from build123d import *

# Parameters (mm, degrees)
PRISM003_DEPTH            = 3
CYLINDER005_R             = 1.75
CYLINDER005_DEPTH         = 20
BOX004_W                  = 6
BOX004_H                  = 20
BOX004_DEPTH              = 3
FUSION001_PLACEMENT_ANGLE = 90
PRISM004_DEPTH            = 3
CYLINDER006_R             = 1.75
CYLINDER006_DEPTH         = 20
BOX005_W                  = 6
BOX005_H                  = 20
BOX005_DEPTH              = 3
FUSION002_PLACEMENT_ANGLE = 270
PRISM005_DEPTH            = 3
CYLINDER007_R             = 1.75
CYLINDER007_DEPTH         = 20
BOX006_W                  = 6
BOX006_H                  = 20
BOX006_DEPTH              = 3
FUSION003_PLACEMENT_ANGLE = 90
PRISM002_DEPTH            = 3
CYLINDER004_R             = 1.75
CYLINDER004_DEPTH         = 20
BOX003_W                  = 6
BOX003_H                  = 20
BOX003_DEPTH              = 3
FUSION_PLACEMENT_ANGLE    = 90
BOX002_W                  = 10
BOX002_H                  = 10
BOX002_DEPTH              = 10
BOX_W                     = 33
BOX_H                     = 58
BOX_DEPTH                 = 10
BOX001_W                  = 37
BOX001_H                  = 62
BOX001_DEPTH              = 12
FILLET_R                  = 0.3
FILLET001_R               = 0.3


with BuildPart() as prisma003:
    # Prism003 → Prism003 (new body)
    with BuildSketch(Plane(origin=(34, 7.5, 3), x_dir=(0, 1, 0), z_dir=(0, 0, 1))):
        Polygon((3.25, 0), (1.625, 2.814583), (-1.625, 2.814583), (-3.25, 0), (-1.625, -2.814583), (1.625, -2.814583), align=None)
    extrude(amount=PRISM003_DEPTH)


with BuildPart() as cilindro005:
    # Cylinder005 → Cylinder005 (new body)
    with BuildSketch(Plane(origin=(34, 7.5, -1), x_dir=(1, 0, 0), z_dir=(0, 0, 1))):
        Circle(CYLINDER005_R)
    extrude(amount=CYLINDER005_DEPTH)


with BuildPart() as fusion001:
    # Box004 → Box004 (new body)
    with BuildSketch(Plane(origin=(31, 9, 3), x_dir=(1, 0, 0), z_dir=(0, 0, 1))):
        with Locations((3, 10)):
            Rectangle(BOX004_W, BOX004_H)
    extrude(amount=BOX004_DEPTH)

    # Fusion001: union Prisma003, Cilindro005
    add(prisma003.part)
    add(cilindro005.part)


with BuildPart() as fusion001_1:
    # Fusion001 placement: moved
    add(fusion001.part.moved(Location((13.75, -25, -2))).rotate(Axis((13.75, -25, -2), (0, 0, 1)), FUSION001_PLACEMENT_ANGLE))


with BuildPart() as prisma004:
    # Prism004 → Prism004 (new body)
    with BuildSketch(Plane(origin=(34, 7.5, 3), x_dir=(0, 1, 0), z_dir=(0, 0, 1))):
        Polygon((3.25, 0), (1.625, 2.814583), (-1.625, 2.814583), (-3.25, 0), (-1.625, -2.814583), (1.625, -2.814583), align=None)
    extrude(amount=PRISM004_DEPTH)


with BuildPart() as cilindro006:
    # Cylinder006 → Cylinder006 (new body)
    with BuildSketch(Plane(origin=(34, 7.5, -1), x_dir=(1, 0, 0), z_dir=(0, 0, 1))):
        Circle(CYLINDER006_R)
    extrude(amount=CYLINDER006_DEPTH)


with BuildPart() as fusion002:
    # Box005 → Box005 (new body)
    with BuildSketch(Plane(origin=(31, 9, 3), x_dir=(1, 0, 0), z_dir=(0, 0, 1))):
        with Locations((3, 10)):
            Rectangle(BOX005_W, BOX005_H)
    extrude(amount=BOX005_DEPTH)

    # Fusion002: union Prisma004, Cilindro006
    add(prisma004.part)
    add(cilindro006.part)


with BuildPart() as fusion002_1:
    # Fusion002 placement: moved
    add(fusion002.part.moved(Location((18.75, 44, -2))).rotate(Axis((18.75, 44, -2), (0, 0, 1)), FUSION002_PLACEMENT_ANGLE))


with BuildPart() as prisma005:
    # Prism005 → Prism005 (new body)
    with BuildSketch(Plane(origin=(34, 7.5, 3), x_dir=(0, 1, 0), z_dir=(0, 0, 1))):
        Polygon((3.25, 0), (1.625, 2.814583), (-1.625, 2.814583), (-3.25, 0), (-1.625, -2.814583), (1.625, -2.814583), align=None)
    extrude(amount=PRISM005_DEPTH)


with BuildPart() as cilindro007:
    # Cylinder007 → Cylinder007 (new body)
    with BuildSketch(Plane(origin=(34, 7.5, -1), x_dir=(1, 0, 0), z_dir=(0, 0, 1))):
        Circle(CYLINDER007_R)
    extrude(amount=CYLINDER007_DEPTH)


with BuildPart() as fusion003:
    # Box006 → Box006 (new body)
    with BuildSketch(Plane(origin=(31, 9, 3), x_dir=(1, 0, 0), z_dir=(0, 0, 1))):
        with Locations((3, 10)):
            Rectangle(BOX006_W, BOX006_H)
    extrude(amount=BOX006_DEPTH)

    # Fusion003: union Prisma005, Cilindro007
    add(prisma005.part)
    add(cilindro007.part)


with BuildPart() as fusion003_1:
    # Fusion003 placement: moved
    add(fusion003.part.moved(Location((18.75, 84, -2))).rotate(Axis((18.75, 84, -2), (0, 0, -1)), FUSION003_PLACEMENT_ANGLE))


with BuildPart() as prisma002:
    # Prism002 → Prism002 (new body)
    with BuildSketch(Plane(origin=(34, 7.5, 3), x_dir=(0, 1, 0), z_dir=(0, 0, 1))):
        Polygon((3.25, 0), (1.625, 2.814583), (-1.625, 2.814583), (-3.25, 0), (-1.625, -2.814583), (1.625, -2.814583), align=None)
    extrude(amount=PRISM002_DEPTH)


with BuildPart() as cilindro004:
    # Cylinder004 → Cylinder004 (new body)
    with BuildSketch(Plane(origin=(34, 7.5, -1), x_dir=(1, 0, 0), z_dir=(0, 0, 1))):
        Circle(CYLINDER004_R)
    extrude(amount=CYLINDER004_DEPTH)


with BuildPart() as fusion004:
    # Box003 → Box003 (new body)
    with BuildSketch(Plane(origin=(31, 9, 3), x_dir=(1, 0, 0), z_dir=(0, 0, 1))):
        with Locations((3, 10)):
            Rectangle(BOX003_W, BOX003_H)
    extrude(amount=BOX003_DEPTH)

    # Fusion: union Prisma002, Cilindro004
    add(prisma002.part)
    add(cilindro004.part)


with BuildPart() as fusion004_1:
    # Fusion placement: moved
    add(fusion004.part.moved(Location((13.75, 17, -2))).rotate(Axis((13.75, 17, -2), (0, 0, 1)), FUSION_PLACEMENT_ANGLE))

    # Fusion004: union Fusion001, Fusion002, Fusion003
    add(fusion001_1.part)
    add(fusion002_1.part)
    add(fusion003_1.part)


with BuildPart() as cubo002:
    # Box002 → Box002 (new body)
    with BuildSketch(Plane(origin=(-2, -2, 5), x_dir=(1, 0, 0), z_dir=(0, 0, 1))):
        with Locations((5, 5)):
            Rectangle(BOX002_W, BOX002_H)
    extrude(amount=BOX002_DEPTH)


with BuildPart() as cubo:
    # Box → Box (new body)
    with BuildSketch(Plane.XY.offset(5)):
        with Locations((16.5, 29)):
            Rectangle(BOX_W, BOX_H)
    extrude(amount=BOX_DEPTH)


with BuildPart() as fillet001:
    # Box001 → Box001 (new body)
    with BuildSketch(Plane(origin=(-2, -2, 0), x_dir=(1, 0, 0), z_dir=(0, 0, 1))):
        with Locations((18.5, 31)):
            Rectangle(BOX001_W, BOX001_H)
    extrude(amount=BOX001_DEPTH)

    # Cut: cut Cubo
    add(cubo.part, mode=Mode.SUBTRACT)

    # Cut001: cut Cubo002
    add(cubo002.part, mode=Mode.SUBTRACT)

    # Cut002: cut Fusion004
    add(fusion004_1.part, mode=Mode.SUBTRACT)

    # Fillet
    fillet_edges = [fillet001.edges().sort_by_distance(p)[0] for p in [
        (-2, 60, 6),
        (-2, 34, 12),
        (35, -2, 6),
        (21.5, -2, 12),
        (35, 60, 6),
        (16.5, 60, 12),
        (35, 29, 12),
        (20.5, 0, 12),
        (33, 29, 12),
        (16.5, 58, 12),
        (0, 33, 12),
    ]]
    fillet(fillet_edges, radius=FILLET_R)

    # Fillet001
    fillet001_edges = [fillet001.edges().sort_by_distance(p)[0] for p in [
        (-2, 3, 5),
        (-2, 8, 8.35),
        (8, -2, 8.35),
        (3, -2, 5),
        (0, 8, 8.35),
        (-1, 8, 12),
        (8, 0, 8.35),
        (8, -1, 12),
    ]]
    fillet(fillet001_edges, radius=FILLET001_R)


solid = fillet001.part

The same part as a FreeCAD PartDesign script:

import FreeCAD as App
import Part
import Sketcher
from FreeCAD import Vector
Q = App.Units.Quantity


def edges_at(feature, points):
    """Names of the edges that pass closest to the given points."""
    edges = feature.Shape.Edges
    near = lambda p: min(range(len(edges)), key=lambda i: edges[i].distToShape(Part.Vertex(*p))[0])
    return sorted({f"Edge{near(p) + 1}" for p in points})


def add_polygon(sketch, points):
    """Adds a closed chain of lines whose ends are joined by coincident constraints."""
    first, n = sketch.GeometryCount, len(points)
    for a, b in zip(points, points[1:] + points[:1]):
        sketch.addGeometry(Part.LineSegment(App.Vector(*a, 0), App.Vector(*b, 0)), False)
    for i in range(n):
        sketch.addConstraint(Sketcher.Constraint("Coincident", first + i, 2, first + (i + 1) % n, 1))

doc = App.newDocument("Part")
body = doc.addObject("PartDesign::Body", "Body")

# Sketch on XY plane
sketch1 = body.newObject("Sketcher::SketchObject", "Sketch")
sketch1.AttachmentSupport = (doc.getObject("XY_Plane"), [""])
sketch1.MapMode = "FlatFace"
sketch1.AttachmentOffset = App.Placement(Vector(0, 0, 3), App.Rotation())
add_polygon(sketch1, [(34, 10.8), (31.2, 9.1), (31.2, 5.9), (34, 4.2), (36.8, 5.9), (36.8, 9.1)])  # lines 0-5
sketch1.addConstraint(Sketcher.Constraint("Vertical", 1))
sketch1.addConstraint(Sketcher.Constraint("Vertical", 4))
sketch1.addConstraint(Sketcher.Constraint("Parallel", 0, 3))
sketch1.addConstraint(Sketcher.Constraint("Parallel", 2, 5))
sketch1.addConstraint(Sketcher.Constraint("Horizontal", 1, 2, 3, 2))
sketch1.addConstraint(Sketcher.Constraint("Horizontal", 0, 2, 4, 2))
sketch1.addConstraint(Sketcher.Constraint("Vertical", 2, 2, 5, 2))
sketch1.addConstraint(Sketcher.Constraint("Angle", 0, Q("-150.000004 deg")))
sketch1.addConstraint(Sketcher.Constraint("DistanceX", -1, 1, 2, 2, 34.0))
sketch1.addConstraint(Sketcher.Constraint("DistanceY", 1, 2, 1, 1, 3.25))
sketch1.addConstraint(Sketcher.Constraint("DistanceY", 2, 2, 5, 2, 6.5))
sketch1.addConstraint(Sketcher.Constraint("DistanceY", -1, 1, 2, 2, 4.25))
pad1 = body.newObject("PartDesign::Pad", "Pad")
pad1.Profile = sketch1
pad1.Length = 3
body2 = doc.addObject("PartDesign::Body", "Body001")

# Sketch on XY plane
sketch2 = body2.newObject("Sketcher::SketchObject", "Sketch001")
sketch2.AttachmentSupport = (doc.getObject("XY_Plane001"), [""])
sketch2.MapMode = "FlatFace"
sketch2.AttachmentOffset = App.Placement(Vector(0, 0, -1), App.Rotation())
sketch2.addGeometry(Part.Circle(Vector(34, 7.5, 0), Vector(0, 0, 1), 1.8), False)
sketch2.addConstraint(Sketcher.Constraint("Diameter", 0, 3.5))
sketch2.addConstraint(Sketcher.Constraint("DistanceX", -1, 1, 0, 3, 34.0))
sketch2.addConstraint(Sketcher.Constraint("DistanceY", -1, 1, 0, 3, 7.5))
pad2 = body2.newObject("PartDesign::Pad", "Pad001")
pad2.Profile = sketch2
pad2.Length = 20
body3 = doc.addObject("PartDesign::Body", "Body002")

# Sketch on XY plane
sketch3 = body3.newObject("Sketcher::SketchObject", "Sketch002")
sketch3.AttachmentSupport = (doc.getObject("XY_Plane002"), [""])
sketch3.MapMode = "FlatFace"
sketch3.AttachmentOffset = App.Placement(Vector(0, 0, 3), App.Rotation())
add_polygon(sketch3, [(31, 29), (31, 9), (37, 9), (37, 29)])  # lines 0-3
sketch3.addConstraint(Sketcher.Constraint("Vertical", 0))
sketch3.addConstraint(Sketcher.Constraint("Horizontal", 1))
sketch3.addConstraint(Sketcher.Constraint("Vertical", 2))
sketch3.addConstraint(Sketcher.Constraint("Horizontal", 3))
sketch3.addConstraint(Sketcher.Constraint("DistanceX", 1, 1, 1, 2, 6.0))
sketch3.addConstraint(Sketcher.Constraint("DistanceY", 0, 2, 0, 1, 20.0))
sketch3.addConstraint(Sketcher.Constraint("DistanceX", -1, 1, 0, 2, 31.0))
sketch3.addConstraint(Sketcher.Constraint("DistanceY", -1, 1, 0, 2, 9.0))
pad3 = body3.newObject("PartDesign::Pad", "Pad002")
pad3.Profile = sketch3
pad3.Length = 3
doc.recompute()

boolean = body3.newObject("PartDesign::Boolean", "Boolean")
boolean.Type = "Fuse"
boolean.addObjects([body])
doc.recompute()

boolean2 = body3.newObject("PartDesign::Boolean", "Boolean001")
boolean2.Type = "Fuse"
boolean2.addObjects([body2])
body4 = doc.addObject("PartDesign::Body", "Body003")
doc.recompute()

body3.Placement = App.Placement(Vector(13.75, -25, -2), App.Rotation(Vector(0, 0, 1), 90))
boolean3 = body4.newObject("PartDesign::Boolean", "Boolean002")
boolean3.Type = "Fuse"
boolean3.addObjects([body3])
body5 = doc.addObject("PartDesign::Body", "Body004")

# Sketch on XY plane
sketch4 = body5.newObject("Sketcher::SketchObject", "Sketch003")
sketch4.AttachmentSupport = (doc.getObject("XY_Plane004"), [""])
sketch4.MapMode = "FlatFace"
sketch4.AttachmentOffset = App.Placement(Vector(0, 0, 3), App.Rotation())
add_polygon(sketch4, [(34, 10.8), (31.2, 9.1), (31.2, 5.9), (34, 4.2), (36.8, 5.9), (36.8, 9.1)])  # lines 0-5
sketch4.addConstraint(Sketcher.Constraint("Vertical", 1))
sketch4.addConstraint(Sketcher.Constraint("Vertical", 4))
sketch4.addConstraint(Sketcher.Constraint("Parallel", 0, 3))
sketch4.addConstraint(Sketcher.Constraint("Parallel", 2, 5))
sketch4.addConstraint(Sketcher.Constraint("Horizontal", 1, 2, 3, 2))
sketch4.addConstraint(Sketcher.Constraint("Horizontal", 0, 2, 4, 2))
sketch4.addConstraint(Sketcher.Constraint("Vertical", 2, 2, 5, 2))
sketch4.addConstraint(Sketcher.Constraint("Angle", 0, Q("-150.000004 deg")))
sketch4.addConstraint(Sketcher.Constraint("DistanceX", -1, 1, 2, 2, 34.0))
sketch4.addConstraint(Sketcher.Constraint("DistanceY", 1, 2, 1, 1, 3.25))
sketch4.addConstraint(Sketcher.Constraint("DistanceY", 2, 2, 5, 2, 6.5))
sketch4.addConstraint(Sketcher.Constraint("DistanceY", -1, 1, 2, 2, 4.25))
pad4 = body5.newObject("PartDesign::Pad", "Pad003")
pad4.Profile = sketch4
pad4.Length = 3
body6 = doc.addObject("PartDesign::Body", "Body005")

# Sketch on XY plane
sketch5 = body6.newObject("Sketcher::SketchObject", "Sketch004")
sketch5.AttachmentSupport = (doc.getObject("XY_Plane005"), [""])
sketch5.MapMode = "FlatFace"
sketch5.AttachmentOffset = App.Placement(Vector(0, 0, -1), App.Rotation())
sketch5.addGeometry(Part.Circle(Vector(34, 7.5, 0), Vector(0, 0, 1), 1.8), False)
sketch5.addConstraint(Sketcher.Constraint("Diameter", 0, 3.5))
sketch5.addConstraint(Sketcher.Constraint("DistanceX", -1, 1, 0, 3, 34.0))
sketch5.addConstraint(Sketcher.Constraint("DistanceY", -1, 1, 0, 3, 7.5))
pad5 = body6.newObject("PartDesign::Pad", "Pad004")
pad5.Profile = sketch5
pad5.Length = 20
body7 = doc.addObject("PartDesign::Body", "Body006")

# Sketch on XY plane
sketch6 = body7.newObject("Sketcher::SketchObject", "Sketch005")
sketch6.AttachmentSupport = (doc.getObject("XY_Plane006"), [""])
sketch6.MapMode = "FlatFace"
sketch6.AttachmentOffset = App.Placement(Vector(0, 0, 3), App.Rotation())
add_polygon(sketch6, [(31, 29), (31, 9), (37, 9), (37, 29)])  # lines 0-3
sketch6.addConstraint(Sketcher.Constraint("Vertical", 0))
sketch6.addConstraint(Sketcher.Constraint("Horizontal", 1))
sketch6.addConstraint(Sketcher.Constraint("Vertical", 2))
sketch6.addConstraint(Sketcher.Constraint("Horizontal", 3))
sketch6.addConstraint(Sketcher.Constraint("DistanceX", 1, 1, 1, 2, 6.0))
sketch6.addConstraint(Sketcher.Constraint("DistanceY", 0, 2, 0, 1, 20.0))
sketch6.addConstraint(Sketcher.Constraint("DistanceX", -1, 1, 0, 2, 31.0))
sketch6.addConstraint(Sketcher.Constraint("DistanceY", -1, 1, 0, 2, 9.0))
pad6 = body7.newObject("PartDesign::Pad", "Pad005")
pad6.Profile = sketch6
pad6.Length = 3
doc.recompute()

boolean4 = body7.newObject("PartDesign::Boolean", "Boolean003")
boolean4.Type = "Fuse"
boolean4.addObjects([body5])
doc.recompute()

boolean5 = body7.newObject("PartDesign::Boolean", "Boolean004")
boolean5.Type = "Fuse"
boolean5.addObjects([body6])
body8 = doc.addObject("PartDesign::Body", "Body007")
doc.recompute()

body7.Placement = App.Placement(Vector(18.75, 44, -2), App.Rotation(Vector(0, 0, 1), 270))
boolean6 = body8.newObject("PartDesign::Boolean", "Boolean005")
boolean6.Type = "Fuse"
boolean6.addObjects([body7])
body9 = doc.addObject("PartDesign::Body", "Body008")

# Sketch on XY plane
sketch7 = body9.newObject("Sketcher::SketchObject", "Sketch006")
sketch7.AttachmentSupport = (doc.getObject("XY_Plane008"), [""])
sketch7.MapMode = "FlatFace"
sketch7.AttachmentOffset = App.Placement(Vector(0, 0, 3), App.Rotation())
add_polygon(sketch7, [(34, 10.8), (31.2, 9.1), (31.2, 5.9), (34, 4.2), (36.8, 5.9), (36.8, 9.1)])  # lines 0-5
sketch7.addConstraint(Sketcher.Constraint("Vertical", 1))
sketch7.addConstraint(Sketcher.Constraint("Vertical", 4))
sketch7.addConstraint(Sketcher.Constraint("Parallel", 0, 3))
sketch7.addConstraint(Sketcher.Constraint("Parallel", 2, 5))
sketch7.addConstraint(Sketcher.Constraint("Horizontal", 1, 2, 3, 2))
sketch7.addConstraint(Sketcher.Constraint("Horizontal", 0, 2, 4, 2))
sketch7.addConstraint(Sketcher.Constraint("Vertical", 2, 2, 5, 2))
sketch7.addConstraint(Sketcher.Constraint("Angle", 0, Q("-150.000004 deg")))
sketch7.addConstraint(Sketcher.Constraint("DistanceX", -1, 1, 2, 2, 34.0))
sketch7.addConstraint(Sketcher.Constraint("DistanceY", 1, 2, 1, 1, 3.25))
sketch7.addConstraint(Sketcher.Constraint("DistanceY", 2, 2, 5, 2, 6.5))
sketch7.addConstraint(Sketcher.Constraint("DistanceY", -1, 1, 2, 2, 4.25))
pad7 = body9.newObject("PartDesign::Pad", "Pad006")
pad7.Profile = sketch7
pad7.Length = 3
body10 = doc.addObject("PartDesign::Body", "Body009")

# Sketch on XY plane
sketch8 = body10.newObject("Sketcher::SketchObject", "Sketch007")
sketch8.AttachmentSupport = (doc.getObject("XY_Plane009"), [""])
sketch8.MapMode = "FlatFace"
sketch8.AttachmentOffset = App.Placement(Vector(0, 0, -1), App.Rotation())
sketch8.addGeometry(Part.Circle(Vector(34, 7.5, 0), Vector(0, 0, 1), 1.8), False)
sketch8.addConstraint(Sketcher.Constraint("Diameter", 0, 3.5))
sketch8.addConstraint(Sketcher.Constraint("DistanceX", -1, 1, 0, 3, 34.0))
sketch8.addConstraint(Sketcher.Constraint("DistanceY", -1, 1, 0, 3, 7.5))
pad8 = body10.newObject("PartDesign::Pad", "Pad007")
pad8.Profile = sketch8
pad8.Length = 20
body11 = doc.addObject("PartDesign::Body", "Body010")

# Sketch on XY plane
sketch9 = body11.newObject("Sketcher::SketchObject", "Sketch008")
sketch9.AttachmentSupport = (doc.getObject("XY_Plane010"), [""])
sketch9.MapMode = "FlatFace"
sketch9.AttachmentOffset = App.Placement(Vector(0, 0, 3), App.Rotation())
add_polygon(sketch9, [(31, 29), (31, 9), (37, 9), (37, 29)])  # lines 0-3
sketch9.addConstraint(Sketcher.Constraint("Vertical", 0))
sketch9.addConstraint(Sketcher.Constraint("Horizontal", 1))
sketch9.addConstraint(Sketcher.Constraint("Vertical", 2))
sketch9.addConstraint(Sketcher.Constraint("Horizontal", 3))
sketch9.addConstraint(Sketcher.Constraint("DistanceX", 1, 1, 1, 2, 6.0))
sketch9.addConstraint(Sketcher.Constraint("DistanceY", 0, 2, 0, 1, 20.0))
sketch9.addConstraint(Sketcher.Constraint("DistanceX", -1, 1, 0, 2, 31.0))
sketch9.addConstraint(Sketcher.Constraint("DistanceY", -1, 1, 0, 2, 9.0))
pad9 = body11.newObject("PartDesign::Pad", "Pad008")
pad9.Profile = sketch9
pad9.Length = 3
doc.recompute()

boolean7 = body11.newObject("PartDesign::Boolean", "Boolean006")
boolean7.Type = "Fuse"
boolean7.addObjects([body9])
doc.recompute()

boolean8 = body11.newObject("PartDesign::Boolean", "Boolean007")
boolean8.Type = "Fuse"
boolean8.addObjects([body10])
body12 = doc.addObject("PartDesign::Body", "Body011")
doc.recompute()

body11.Placement = App.Placement(Vector(18.75, 84, -2), App.Rotation(Vector(0, 0, -1), 90))
boolean9 = body12.newObject("PartDesign::Boolean", "Boolean008")
boolean9.Type = "Fuse"
boolean9.addObjects([body11])
body13 = doc.addObject("PartDesign::Body", "Body012")

# Sketch on XY plane
sketch10 = body13.newObject("Sketcher::SketchObject", "Sketch009")
sketch10.AttachmentSupport = (doc.getObject("XY_Plane012"), [""])
sketch10.MapMode = "FlatFace"
sketch10.AttachmentOffset = App.Placement(Vector(0, 0, 3), App.Rotation())
add_polygon(sketch10, [(34, 10.8), (31.2, 9.1), (31.2, 5.9), (34, 4.2), (36.8, 5.9), (36.8, 9.1)])  # lines 0-5
sketch10.addConstraint(Sketcher.Constraint("Vertical", 1))
sketch10.addConstraint(Sketcher.Constraint("Vertical", 4))
sketch10.addConstraint(Sketcher.Constraint("Parallel", 0, 3))
sketch10.addConstraint(Sketcher.Constraint("Parallel", 2, 5))
sketch10.addConstraint(Sketcher.Constraint("Horizontal", 1, 2, 3, 2))
sketch10.addConstraint(Sketcher.Constraint("Horizontal", 0, 2, 4, 2))
sketch10.addConstraint(Sketcher.Constraint("Vertical", 2, 2, 5, 2))
sketch10.addConstraint(Sketcher.Constraint("Angle", 0, Q("-150.000004 deg")))
sketch10.addConstraint(Sketcher.Constraint("DistanceX", -1, 1, 2, 2, 34.0))
sketch10.addConstraint(Sketcher.Constraint("DistanceY", 1, 2, 1, 1, 3.25))
sketch10.addConstraint(Sketcher.Constraint("DistanceY", 2, 2, 5, 2, 6.5))
sketch10.addConstraint(Sketcher.Constraint("DistanceY", -1, 1, 2, 2, 4.25))
pad10 = body13.newObject("PartDesign::Pad", "Pad009")
pad10.Profile = sketch10
pad10.Length = 3
body14 = doc.addObject("PartDesign::Body", "Body013")

# Sketch on XY plane
sketch11 = body14.newObject("Sketcher::SketchObject", "Sketch010")
sketch11.AttachmentSupport = (doc.getObject("XY_Plane013"), [""])
sketch11.MapMode = "FlatFace"
sketch11.AttachmentOffset = App.Placement(Vector(0, 0, -1), App.Rotation())
sketch11.addGeometry(Part.Circle(Vector(34, 7.5, 0), Vector(0, 0, 1), 1.8), False)
sketch11.addConstraint(Sketcher.Constraint("Diameter", 0, 3.5))
sketch11.addConstraint(Sketcher.Constraint("DistanceX", -1, 1, 0, 3, 34.0))
sketch11.addConstraint(Sketcher.Constraint("DistanceY", -1, 1, 0, 3, 7.5))
pad11 = body14.newObject("PartDesign::Pad", "Pad010")
pad11.Profile = sketch11
pad11.Length = 20
body15 = doc.addObject("PartDesign::Body", "Body014")

# Sketch on XY plane
sketch12 = body15.newObject("Sketcher::SketchObject", "Sketch011")
sketch12.AttachmentSupport = (doc.getObject("XY_Plane014"), [""])
sketch12.MapMode = "FlatFace"
sketch12.AttachmentOffset = App.Placement(Vector(0, 0, 3), App.Rotation())
add_polygon(sketch12, [(31, 29), (31, 9), (37, 9), (37, 29)])  # lines 0-3
sketch12.addConstraint(Sketcher.Constraint("Vertical", 0))
sketch12.addConstraint(Sketcher.Constraint("Horizontal", 1))
sketch12.addConstraint(Sketcher.Constraint("Vertical", 2))
sketch12.addConstraint(Sketcher.Constraint("Horizontal", 3))
sketch12.addConstraint(Sketcher.Constraint("DistanceX", 1, 1, 1, 2, 6.0))
sketch12.addConstraint(Sketcher.Constraint("DistanceY", 0, 2, 0, 1, 20.0))
sketch12.addConstraint(Sketcher.Constraint("DistanceX", -1, 1, 0, 2, 31.0))
sketch12.addConstraint(Sketcher.Constraint("DistanceY", -1, 1, 0, 2, 9.0))
pad12 = body15.newObject("PartDesign::Pad", "Pad011")
pad12.Profile = sketch12
pad12.Length = 3
doc.recompute()

boolean10 = body15.newObject("PartDesign::Boolean", "Boolean009")
boolean10.Type = "Fuse"
boolean10.addObjects([body13])
doc.recompute()

boolean11 = body15.newObject("PartDesign::Boolean", "Boolean010")
boolean11.Type = "Fuse"
boolean11.addObjects([body14])
body16 = doc.addObject("PartDesign::Body", "Body015")
body16.AllowCompound = True
doc.recompute()

body15.Placement = App.Placement(Vector(13.75, 17, -2), App.Rotation(Vector(0, 0, 1), 90))
boolean12 = body16.newObject("PartDesign::Boolean", "Boolean011")
boolean12.Type = "Fuse"
boolean12.addObjects([body15])
doc.recompute()

boolean13 = body16.newObject("PartDesign::Boolean", "Boolean012")
boolean13.Type = "Fuse"
boolean13.addObjects([body4])
doc.recompute()

boolean14 = body16.newObject("PartDesign::Boolean", "Boolean013")
boolean14.Type = "Fuse"
boolean14.addObjects([body8])
doc.recompute()

boolean15 = body16.newObject("PartDesign::Boolean", "Boolean014")
boolean15.Type = "Fuse"
boolean15.addObjects([body12])
body17 = doc.addObject("PartDesign::Body", "Body016")

# Sketch on XY plane
sketch13 = body17.newObject("Sketcher::SketchObject", "Sketch012")
sketch13.AttachmentSupport = (doc.getObject("XY_Plane016"), [""])
sketch13.MapMode = "FlatFace"
sketch13.AttachmentOffset = App.Placement(Vector(0, 0, 5), App.Rotation())
add_polygon(sketch13, [(-2, 8), (-2, -2), (8, -2), (8, 8)])  # lines 0-3
sketch13.addConstraint(Sketcher.Constraint("Vertical", 0))
sketch13.addConstraint(Sketcher.Constraint("Horizontal", 1))
sketch13.addConstraint(Sketcher.Constraint("Vertical", 2))
sketch13.addConstraint(Sketcher.Constraint("Horizontal", 3))
sketch13.addConstraint(Sketcher.Constraint("Equal", 3, 0))
sketch13.addConstraint(Sketcher.Constraint("DistanceX", 1, 1, 1, 2, 10.0))
sketch13.addConstraint(Sketcher.Constraint("DistanceX", 0, 2, -1, 1, 2.0))
sketch13.addConstraint(Sketcher.Constraint("DistanceY", 0, 2, -1, 1, 2.0))
pad13 = body17.newObject("PartDesign::Pad", "Pad012")
pad13.Profile = sketch13
pad13.Length = 10
body18 = doc.addObject("PartDesign::Body", "Body017")

# Sketch on XY plane
sketch14 = body18.newObject("Sketcher::SketchObject", "Sketch013")
sketch14.AttachmentSupport = (doc.getObject("XY_Plane017"), [""])
sketch14.MapMode = "FlatFace"
sketch14.AttachmentOffset = App.Placement(Vector(0, 0, 5), App.Rotation())
add_polygon(sketch14, [(0, 58), (0, 0), (33, 0), (33, 58)])  # lines 0-3
sketch14.addConstraint(Sketcher.Constraint("Vertical", 0))
sketch14.addConstraint(Sketcher.Constraint("Horizontal", 1))
sketch14.addConstraint(Sketcher.Constraint("Vertical", 2))
sketch14.addConstraint(Sketcher.Constraint("Horizontal", 3))
sketch14.addConstraint(Sketcher.Constraint("Coincident", 0, 2, -1, 1))
sketch14.addConstraint(Sketcher.Constraint("DistanceX", 1, 1, 1, 2, 33.0))
sketch14.addConstraint(Sketcher.Constraint("DistanceY", 0, 2, 0, 1, 58.0))
pad14 = body18.newObject("PartDesign::Pad", "Pad013")
pad14.Profile = sketch14
pad14.Length = 10
body19 = doc.addObject("PartDesign::Body", "Body018")

# Sketch on XY plane
sketch15 = body19.newObject("Sketcher::SketchObject", "Sketch014")
sketch15.AttachmentSupport = (doc.getObject("XY_Plane018"), [""])
sketch15.MapMode = "FlatFace"
add_polygon(sketch15, [(-2, 60), (-2, -2), (35, -2), (35, 60)])  # lines 0-3
sketch15.addConstraint(Sketcher.Constraint("Vertical", 0))
sketch15.addConstraint(Sketcher.Constraint("Horizontal", 1))
sketch15.addConstraint(Sketcher.Constraint("Vertical", 2))
sketch15.addConstraint(Sketcher.Constraint("Horizontal", 3))
sketch15.addConstraint(Sketcher.Constraint("DistanceX", 1, 1, 1, 2, 37.0))
sketch15.addConstraint(Sketcher.Constraint("DistanceY", 0, 2, 0, 1, 62.0))
sketch15.addConstraint(Sketcher.Constraint("DistanceX", 0, 2, -1, 1, 2.0))
sketch15.addConstraint(Sketcher.Constraint("DistanceY", 0, 2, -1, 1, 2.0))
pad15 = body19.newObject("PartDesign::Pad", "Pad014")
pad15.Profile = sketch15
pad15.Length = 12
doc.recompute()

boolean16 = body19.newObject("PartDesign::Boolean", "Boolean015")
boolean16.Type = "Cut"
boolean16.addObjects([body18])
doc.recompute()

boolean17 = body19.newObject("PartDesign::Boolean", "Boolean016")
boolean17.Type = "Cut"
boolean17.addObjects([body17])
doc.recompute()

boolean18 = body19.newObject("PartDesign::Boolean", "Boolean017")
boolean18.Type = "Cut"
boolean18.addObjects([body16])
doc.recompute()

fillet = body19.newObject("PartDesign::Fillet", "Fillet")
fillet.Base = (boolean18, edges_at(boolean18, [
    (-2, 60, 6),
    (-2, 34, 12),
    (35, -2, 6),
    (21.5, -2, 12),
    (35, 60, 6),
    (16.5, 60, 12),
    (35, 29, 12),
    (20.5, 0, 12),
    (33, 29, 12),
    (16.5, 58, 12),
    (0, 33, 12),
]))
fillet.Radius = 0.3
doc.recompute()

fillet2 = body19.newObject("PartDesign::Fillet", "Fillet001")
fillet2.Base = (fillet, edges_at(fillet, [
    (-2, 3, 5),
    (-2, 8, 8.35),
    (8, -2, 8.35),
    (3, -2, 5),
    (0, 8, 8.35),
    (-1, 8, 12),
    (8, 0, 8.35),
    (8, -1, 12),
]))
fillet2.Radius = 0.3

doc.recompute()
